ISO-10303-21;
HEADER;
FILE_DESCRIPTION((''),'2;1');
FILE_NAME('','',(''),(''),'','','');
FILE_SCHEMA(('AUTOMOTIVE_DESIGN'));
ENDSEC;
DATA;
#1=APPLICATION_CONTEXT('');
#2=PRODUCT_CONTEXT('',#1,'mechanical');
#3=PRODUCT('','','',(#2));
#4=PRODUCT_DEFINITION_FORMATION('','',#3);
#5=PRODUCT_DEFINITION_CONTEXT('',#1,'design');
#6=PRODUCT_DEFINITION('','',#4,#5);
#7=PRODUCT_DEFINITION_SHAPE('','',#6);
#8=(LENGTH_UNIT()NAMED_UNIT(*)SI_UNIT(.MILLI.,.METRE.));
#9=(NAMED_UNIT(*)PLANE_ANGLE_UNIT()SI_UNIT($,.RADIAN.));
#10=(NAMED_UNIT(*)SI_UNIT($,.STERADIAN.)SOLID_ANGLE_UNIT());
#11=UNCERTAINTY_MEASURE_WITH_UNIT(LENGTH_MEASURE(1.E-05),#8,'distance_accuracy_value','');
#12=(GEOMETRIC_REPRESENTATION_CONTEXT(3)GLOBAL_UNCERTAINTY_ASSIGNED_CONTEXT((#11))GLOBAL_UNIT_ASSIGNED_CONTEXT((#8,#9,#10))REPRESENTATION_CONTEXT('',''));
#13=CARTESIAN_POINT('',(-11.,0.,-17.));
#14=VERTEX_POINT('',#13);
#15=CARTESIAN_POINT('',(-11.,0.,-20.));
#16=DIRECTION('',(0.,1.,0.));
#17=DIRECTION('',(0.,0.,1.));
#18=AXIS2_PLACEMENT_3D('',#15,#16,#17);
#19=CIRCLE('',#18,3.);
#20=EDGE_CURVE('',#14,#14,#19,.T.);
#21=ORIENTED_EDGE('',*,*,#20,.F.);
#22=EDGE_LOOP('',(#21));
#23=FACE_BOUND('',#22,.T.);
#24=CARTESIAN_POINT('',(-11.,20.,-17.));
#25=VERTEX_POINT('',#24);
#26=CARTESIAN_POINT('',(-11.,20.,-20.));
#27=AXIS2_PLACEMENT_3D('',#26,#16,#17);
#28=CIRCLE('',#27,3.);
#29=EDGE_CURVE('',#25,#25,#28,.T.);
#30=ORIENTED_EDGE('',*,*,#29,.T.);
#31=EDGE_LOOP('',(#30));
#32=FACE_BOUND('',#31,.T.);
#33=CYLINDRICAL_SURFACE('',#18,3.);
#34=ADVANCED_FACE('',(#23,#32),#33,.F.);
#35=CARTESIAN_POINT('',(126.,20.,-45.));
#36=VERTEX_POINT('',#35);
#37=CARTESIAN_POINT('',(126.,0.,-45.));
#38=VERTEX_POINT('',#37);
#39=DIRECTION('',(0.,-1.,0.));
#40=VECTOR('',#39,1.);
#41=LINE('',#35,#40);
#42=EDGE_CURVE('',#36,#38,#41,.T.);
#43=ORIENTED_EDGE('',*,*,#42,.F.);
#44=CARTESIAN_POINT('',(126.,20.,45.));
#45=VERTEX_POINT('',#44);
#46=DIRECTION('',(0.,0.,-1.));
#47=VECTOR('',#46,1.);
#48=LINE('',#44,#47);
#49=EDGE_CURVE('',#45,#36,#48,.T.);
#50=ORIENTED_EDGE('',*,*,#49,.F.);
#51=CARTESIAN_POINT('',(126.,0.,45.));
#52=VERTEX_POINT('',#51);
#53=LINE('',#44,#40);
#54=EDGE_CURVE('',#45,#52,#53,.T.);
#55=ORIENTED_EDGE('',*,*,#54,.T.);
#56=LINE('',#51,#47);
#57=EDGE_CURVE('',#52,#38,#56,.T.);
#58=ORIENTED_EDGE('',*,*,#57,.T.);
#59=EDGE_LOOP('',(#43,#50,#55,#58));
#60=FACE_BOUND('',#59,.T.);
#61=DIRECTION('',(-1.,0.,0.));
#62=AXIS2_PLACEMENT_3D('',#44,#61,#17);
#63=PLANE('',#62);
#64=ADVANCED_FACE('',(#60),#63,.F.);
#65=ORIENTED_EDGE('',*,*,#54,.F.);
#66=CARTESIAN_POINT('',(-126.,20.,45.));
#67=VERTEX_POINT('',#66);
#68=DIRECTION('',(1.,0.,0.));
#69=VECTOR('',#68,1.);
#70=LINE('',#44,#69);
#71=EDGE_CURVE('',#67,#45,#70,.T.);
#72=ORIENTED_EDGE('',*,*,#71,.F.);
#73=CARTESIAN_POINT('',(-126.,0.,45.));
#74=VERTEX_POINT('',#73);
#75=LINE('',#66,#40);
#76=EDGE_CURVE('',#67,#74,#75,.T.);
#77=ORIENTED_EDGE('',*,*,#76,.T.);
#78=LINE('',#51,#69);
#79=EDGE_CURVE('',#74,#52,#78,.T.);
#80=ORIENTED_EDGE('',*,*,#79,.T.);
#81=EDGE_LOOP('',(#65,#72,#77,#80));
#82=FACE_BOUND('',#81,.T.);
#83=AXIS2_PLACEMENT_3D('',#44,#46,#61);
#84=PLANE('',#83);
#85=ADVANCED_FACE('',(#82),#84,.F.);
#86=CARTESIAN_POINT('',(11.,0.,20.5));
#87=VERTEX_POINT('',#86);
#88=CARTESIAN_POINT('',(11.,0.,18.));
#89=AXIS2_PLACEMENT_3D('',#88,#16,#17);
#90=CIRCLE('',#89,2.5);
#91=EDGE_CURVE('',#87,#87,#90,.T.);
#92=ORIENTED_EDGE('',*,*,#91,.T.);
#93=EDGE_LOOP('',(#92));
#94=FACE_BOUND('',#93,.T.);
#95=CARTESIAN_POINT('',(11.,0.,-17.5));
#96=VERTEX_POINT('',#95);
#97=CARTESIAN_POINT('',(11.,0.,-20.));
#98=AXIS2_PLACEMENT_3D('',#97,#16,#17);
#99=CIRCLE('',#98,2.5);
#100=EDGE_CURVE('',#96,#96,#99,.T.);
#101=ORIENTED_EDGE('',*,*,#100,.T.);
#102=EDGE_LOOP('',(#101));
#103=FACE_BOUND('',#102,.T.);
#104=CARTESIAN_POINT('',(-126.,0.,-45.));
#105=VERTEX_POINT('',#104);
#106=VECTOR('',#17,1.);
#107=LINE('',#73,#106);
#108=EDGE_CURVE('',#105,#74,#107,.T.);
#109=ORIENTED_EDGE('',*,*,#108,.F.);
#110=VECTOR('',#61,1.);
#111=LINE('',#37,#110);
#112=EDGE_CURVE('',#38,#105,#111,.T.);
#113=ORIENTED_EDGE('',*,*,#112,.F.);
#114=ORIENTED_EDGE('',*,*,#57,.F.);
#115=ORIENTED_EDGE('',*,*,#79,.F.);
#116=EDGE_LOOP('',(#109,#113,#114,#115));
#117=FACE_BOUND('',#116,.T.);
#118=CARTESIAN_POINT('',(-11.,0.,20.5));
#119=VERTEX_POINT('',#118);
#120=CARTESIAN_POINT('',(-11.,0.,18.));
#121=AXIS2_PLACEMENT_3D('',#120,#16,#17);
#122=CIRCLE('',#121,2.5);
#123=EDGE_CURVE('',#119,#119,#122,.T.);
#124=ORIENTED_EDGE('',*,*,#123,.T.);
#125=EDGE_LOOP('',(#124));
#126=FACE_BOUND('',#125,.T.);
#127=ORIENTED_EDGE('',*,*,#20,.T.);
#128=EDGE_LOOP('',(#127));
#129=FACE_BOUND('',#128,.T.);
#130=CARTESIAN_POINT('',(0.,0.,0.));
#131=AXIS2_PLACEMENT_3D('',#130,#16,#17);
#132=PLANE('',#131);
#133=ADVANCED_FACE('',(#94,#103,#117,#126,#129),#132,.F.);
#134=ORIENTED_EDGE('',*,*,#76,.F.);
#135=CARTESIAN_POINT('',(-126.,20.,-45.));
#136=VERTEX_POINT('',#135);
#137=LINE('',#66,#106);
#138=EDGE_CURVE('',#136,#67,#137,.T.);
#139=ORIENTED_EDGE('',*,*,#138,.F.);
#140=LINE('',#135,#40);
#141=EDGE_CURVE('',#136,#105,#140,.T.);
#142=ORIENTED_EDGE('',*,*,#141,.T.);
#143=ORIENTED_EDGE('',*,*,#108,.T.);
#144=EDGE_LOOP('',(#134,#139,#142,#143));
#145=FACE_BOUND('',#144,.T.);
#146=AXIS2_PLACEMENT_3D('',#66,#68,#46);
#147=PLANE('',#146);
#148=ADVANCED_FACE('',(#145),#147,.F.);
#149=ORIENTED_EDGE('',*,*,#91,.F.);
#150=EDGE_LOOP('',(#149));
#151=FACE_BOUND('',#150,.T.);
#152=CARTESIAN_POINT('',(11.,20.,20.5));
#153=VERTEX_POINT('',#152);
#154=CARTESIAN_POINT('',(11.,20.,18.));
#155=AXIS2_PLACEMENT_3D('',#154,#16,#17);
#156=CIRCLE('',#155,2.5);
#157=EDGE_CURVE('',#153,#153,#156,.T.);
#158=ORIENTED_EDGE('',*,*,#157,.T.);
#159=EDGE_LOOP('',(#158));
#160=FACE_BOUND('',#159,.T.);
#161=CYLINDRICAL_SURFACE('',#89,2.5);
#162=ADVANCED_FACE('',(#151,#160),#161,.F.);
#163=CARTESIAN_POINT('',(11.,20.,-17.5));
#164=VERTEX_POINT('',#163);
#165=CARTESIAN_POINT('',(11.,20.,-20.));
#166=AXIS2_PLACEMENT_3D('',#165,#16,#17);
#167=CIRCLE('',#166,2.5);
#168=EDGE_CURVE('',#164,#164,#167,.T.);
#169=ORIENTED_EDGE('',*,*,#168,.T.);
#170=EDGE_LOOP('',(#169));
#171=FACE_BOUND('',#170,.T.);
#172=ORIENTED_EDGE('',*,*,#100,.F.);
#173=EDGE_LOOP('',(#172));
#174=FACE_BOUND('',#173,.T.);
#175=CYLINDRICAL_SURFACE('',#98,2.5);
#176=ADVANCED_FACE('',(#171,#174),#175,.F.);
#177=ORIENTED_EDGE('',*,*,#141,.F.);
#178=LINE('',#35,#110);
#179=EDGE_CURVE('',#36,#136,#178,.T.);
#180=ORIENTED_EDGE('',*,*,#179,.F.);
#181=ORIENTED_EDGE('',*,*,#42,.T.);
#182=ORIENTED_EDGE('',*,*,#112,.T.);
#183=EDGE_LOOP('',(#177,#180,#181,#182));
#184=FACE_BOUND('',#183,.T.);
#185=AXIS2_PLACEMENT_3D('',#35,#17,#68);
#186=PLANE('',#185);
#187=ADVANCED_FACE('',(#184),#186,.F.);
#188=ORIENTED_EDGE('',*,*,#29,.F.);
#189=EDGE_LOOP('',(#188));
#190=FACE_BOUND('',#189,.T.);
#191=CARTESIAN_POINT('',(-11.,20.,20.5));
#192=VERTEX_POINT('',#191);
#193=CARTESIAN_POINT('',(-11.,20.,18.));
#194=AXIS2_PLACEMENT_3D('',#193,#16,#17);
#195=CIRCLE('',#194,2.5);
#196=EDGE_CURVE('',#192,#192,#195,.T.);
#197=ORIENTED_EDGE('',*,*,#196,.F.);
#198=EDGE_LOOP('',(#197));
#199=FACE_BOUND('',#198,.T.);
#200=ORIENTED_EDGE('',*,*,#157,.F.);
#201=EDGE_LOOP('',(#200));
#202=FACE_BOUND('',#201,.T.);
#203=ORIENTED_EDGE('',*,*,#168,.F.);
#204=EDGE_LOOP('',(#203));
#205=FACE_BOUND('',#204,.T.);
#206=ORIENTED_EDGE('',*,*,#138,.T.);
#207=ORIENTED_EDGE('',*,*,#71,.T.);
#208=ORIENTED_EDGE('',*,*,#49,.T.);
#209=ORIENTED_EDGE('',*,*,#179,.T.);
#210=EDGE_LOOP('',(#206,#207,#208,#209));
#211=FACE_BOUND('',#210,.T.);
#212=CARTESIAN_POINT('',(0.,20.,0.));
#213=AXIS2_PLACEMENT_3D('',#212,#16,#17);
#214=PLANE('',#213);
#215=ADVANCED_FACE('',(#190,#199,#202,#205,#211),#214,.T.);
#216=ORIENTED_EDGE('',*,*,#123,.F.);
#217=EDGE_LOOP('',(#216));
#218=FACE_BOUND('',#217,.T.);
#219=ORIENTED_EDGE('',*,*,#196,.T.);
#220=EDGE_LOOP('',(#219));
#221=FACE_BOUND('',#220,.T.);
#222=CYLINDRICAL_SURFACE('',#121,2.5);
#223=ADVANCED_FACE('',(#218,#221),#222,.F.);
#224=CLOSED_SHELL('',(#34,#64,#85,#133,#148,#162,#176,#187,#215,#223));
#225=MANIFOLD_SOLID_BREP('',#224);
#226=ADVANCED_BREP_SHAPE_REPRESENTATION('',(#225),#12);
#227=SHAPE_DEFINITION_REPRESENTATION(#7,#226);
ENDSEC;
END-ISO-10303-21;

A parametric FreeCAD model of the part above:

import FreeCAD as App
import Part
import Sketcher

V = App.Vector


def add_polygon(sketch, points):
    """Adds a closed chain of lines whose ends are joined by coincident constraints."""
    first, n = sketch.GeometryCount, len(points)
    for a, b in zip(points, points[1:] + points[:1]):
        sketch.addGeometry(Part.LineSegment(App.Vector(*a, 0), App.Vector(*b, 0)), False)
    for i in range(n):
        sketch.addConstraint(Sketcher.Constraint("Coincident", first + i, 2, first + (i + 1) % n, 1))

doc = App.newDocument("Part")
body = doc.addObject("PartDesign::Body", "Body")

sketch1 = doc.addObject("Sketcher::SketchObject", "Sketch")
body.addObject(sketch1)
sketch1.AttachmentSupport = (doc.XZ_Plane, [""])
sketch1.MapMode = "FlatFace"
add_polygon(sketch1, [(-126, -45), (-126, 45), (126, 45), (126, -45)])
sketch1.addConstraint([
    Sketcher.Constraint("Vertical", 0),
    Sketcher.Constraint("Horizontal", 1),
    Sketcher.Constraint("Vertical", 2),
    Sketcher.Constraint("Horizontal", 3),
    Sketcher.Constraint("Symmetric", 0, 2, 2, 2, -1, 1),
    Sketcher.Constraint("DistanceX", 1, 1, 1, 2, 252.0),
    Sketcher.Constraint("DistanceY", 0, 1, 0, 2, 90.0),
])
pad1 = doc.addObject("PartDesign::Pad", "Pad")
body.addObject(pad1)
pad1.Profile = sketch1
pad1.Length = 20
pad1.Reversed = True

sketch2 = doc.addObject("Sketcher::SketchObject", "Sketch001")
body.addObject(sketch2)
sketch2.AttachmentSupport = (doc.XZ_Plane, [""])
sketch2.MapMode = "FlatFace"
sketch2.AttachmentOffset = App.Placement(V(0, 0, -20), App.Rotation())
sketch2.addGeometry([
    Part.Circle(V(-11, -20, 0), V(0, 0, 1), 3),
    Part.Circle(V(11, -20, 0), V(0, 0, 1), 2.5),
    Part.Circle(V(11, 18, 0), V(0, 0, 1), 2.5),
    Part.Circle(V(-11, 18, 0), V(0, 0, 1), 2.5),
], False)
sketch2.addConstraint([
    Sketcher.Constraint("Equal", 1, 2),
    Sketcher.Constraint("Equal", 2, 3),
    Sketcher.Constraint("Symmetric", 0, 3, 1, 3, -2),
    Sketcher.Constraint("Symmetric", 2, 3, 3, 3, -2),
    Sketcher.Constraint("Vertical", 1, 3, 2, 3),
    Sketcher.Constraint("Diameter", 0, 6.0),
    Sketcher.Constraint("Diameter", 1, 5.0),
    Sketcher.Constraint("DistanceX", 0, 3, -1, 1, 11.0),
    Sketcher.Constraint("DistanceY", 0, 3, -1, 1, 20.0),
    Sketcher.Constraint("DistanceY", -1, 1, 2, 3, 18.0),
])
pocket1 = doc.addObject("PartDesign::Pocket", "Pocket")
body.addObject(pocket1)
pocket1.Profile = sketch2
pocket1.Length = 20
pocket1.Reversed = True

doc.recompute()
